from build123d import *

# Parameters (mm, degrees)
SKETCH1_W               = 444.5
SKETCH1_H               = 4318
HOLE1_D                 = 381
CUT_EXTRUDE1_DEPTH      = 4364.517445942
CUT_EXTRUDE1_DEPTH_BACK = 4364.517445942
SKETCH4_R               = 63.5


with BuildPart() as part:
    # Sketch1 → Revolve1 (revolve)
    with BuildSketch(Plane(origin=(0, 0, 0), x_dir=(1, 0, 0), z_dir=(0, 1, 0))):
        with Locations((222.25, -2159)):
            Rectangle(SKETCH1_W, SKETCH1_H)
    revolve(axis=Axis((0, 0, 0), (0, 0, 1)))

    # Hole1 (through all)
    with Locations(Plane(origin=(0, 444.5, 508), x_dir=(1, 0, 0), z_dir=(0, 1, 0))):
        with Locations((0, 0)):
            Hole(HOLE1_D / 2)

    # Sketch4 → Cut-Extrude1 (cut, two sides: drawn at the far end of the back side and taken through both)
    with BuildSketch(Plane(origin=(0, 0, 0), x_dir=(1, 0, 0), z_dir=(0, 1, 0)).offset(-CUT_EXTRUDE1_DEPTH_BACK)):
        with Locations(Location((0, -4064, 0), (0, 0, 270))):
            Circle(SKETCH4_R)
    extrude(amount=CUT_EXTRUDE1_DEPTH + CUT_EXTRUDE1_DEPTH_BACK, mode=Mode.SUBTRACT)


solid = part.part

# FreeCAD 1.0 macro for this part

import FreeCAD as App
import Part
import Sketcher
Q = App.Units.Quantity

doc = App.newDocument("Part")
body = doc.addObject("PartDesign::Body", "Body")

# Sketch on XZ plane
sketch1 = doc.addObject("Sketcher::SketchObject", "Sketch")
body.addObject(sketch1)
sketch1.AttachmentSupport = (doc.XZ_Plane, [""])
sketch1.MapMode = "FlatFace"
sketch1.addGeometry([
    Part.LineSegment(App.Vector(0, 0, 0), App.Vector(0, 4318, 0)),
    Part.LineSegment(App.Vector(0, 4318, 0), App.Vector(444.5, 4318, 0)),
    Part.LineSegment(App.Vector(444.5, 4318, 0), App.Vector(444.5, 0, 0)),
    Part.LineSegment(App.Vector(444.5, 0, 0), App.Vector(0, 0, 0)),
], False)
sketch1.addConstraint([
    Sketcher.Constraint("Coincident", 0, 2, 1, 1),
    Sketcher.Constraint("Coincident", 1, 2, 2, 1),
    Sketcher.Constraint("Coincident", 2, 2, 3, 1),
    Sketcher.Constraint("Coincident", 3, 2, 0, 1),
    Sketcher.Constraint("Vertical", 0),
    Sketcher.Constraint("Horizontal", 1),
    Sketcher.Constraint("Vertical", 2),
    Sketcher.Constraint("Horizontal", 3),
    Sketcher.Constraint("Coincident", 3, 2, -1, 1),
    Sketcher.Constraint("DistanceY", 0, 1, 0, 2, Q("170 in")),
    Sketcher.Constraint("DistanceX", 1, 1, 1, 2, Q("17.5 in")),
])
revolution = doc.addObject("PartDesign::Revolution", "Revolution")
body.addObject(revolution)
revolution.Profile = sketch1
revolution.ReferenceAxis = (sketch1, ["V_Axis"])
revolution.Angle = 360

# Sketch on XZ plane
sketch2 = doc.addObject("Sketcher::SketchObject", "Sketch001")
body.addObject(sketch2)
sketch2.AttachmentSupport = (doc.XZ_Plane, [""])
sketch2.MapMode = "FlatFace"
sketch2.AttachmentOffset = App.Placement(App.Vector(0, 0, -17.5 * 25.4), App.Rotation())
sketch2.addGeometry(Part.Circle(App.Vector(0, 508, 0), App.Vector(0, 0, 1), 190.5), False)
sketch2.addConstraint([
    Sketcher.Constraint("PointOnObject", 0, 3, -2),
    Sketcher.Constraint("Diameter", 0, Q("15 in")),
    Sketcher.Constraint("DistanceY", -1, 1, 0, 3, Q("20 in")),
])
doc.recompute()
hole = doc.addObject("PartDesign::Hole", "Hole")
body.addObject(hole)
hole.Profile = sketch2
hole.ThreadType = "None"
hole.Diameter = Q("15 in")
hole.DepthType = "ThroughAll"
hole.Reversed = True

# Sketch on XZ plane
sketch3 = doc.addObject("Sketcher::SketchObject", "Sketch002")
body.addObject(sketch3)
sketch3.AttachmentSupport = (doc.XZ_Plane, [""])
sketch3.MapMode = "FlatFace"
sketch3.addGeometry(Part.Circle(App.Vector(0, 4064, 0), App.Vector(0, 0, 1), 63.5), False)
sketch3.addConstraint([
    Sketcher.Constraint("PointOnObject", 0, 3, -2),
    Sketcher.Constraint("Diameter", 0, Q("5 in")),
    Sketcher.Constraint("DistanceY", -1, 1, 0, 3, Q("160 in")),
])
pocket1 = doc.addObject("PartDesign::Pocket", "Pocket")
body.addObject(pocket1)
pocket1.Profile = sketch3
pocket1.Type = "ThroughAll"
pocket1.Midplane = True

doc.recompute()
